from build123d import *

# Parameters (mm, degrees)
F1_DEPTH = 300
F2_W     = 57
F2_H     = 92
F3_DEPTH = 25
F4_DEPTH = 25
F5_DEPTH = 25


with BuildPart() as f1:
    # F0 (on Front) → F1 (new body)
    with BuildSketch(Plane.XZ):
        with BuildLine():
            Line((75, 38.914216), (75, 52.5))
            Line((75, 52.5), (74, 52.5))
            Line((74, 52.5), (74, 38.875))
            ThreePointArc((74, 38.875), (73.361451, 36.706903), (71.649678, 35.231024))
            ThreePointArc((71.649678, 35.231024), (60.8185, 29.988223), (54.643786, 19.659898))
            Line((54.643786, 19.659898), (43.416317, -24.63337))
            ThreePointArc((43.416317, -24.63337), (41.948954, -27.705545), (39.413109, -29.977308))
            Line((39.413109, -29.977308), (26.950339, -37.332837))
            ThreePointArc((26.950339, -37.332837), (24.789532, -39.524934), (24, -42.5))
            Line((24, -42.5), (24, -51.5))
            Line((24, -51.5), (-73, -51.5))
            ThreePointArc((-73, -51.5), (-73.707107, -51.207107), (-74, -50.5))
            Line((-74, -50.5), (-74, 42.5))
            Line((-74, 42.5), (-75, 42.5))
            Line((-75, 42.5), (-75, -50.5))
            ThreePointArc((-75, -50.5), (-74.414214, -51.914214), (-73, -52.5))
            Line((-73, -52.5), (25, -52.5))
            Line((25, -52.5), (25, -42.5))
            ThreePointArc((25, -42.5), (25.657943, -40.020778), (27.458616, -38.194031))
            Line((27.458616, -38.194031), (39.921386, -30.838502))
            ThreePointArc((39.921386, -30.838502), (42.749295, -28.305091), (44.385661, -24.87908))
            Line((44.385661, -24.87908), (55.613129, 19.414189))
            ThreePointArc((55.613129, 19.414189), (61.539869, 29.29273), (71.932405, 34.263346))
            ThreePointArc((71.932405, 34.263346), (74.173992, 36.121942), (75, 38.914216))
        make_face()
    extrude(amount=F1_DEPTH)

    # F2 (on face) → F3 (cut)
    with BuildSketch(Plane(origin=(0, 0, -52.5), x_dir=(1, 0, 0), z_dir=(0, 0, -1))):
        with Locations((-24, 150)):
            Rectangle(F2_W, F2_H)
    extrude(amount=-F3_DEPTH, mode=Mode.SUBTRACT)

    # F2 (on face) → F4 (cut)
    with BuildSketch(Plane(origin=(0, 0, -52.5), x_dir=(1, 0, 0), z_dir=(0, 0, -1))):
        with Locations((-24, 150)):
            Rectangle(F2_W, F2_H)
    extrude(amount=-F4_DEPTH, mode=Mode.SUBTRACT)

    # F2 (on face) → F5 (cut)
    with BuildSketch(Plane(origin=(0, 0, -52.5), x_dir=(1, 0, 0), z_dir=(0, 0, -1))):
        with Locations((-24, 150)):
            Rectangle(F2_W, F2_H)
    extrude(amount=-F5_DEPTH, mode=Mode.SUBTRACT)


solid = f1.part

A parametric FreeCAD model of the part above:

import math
import FreeCAD as App
import Part
import Sketcher
from FreeCAD import Vector


def add_polygon(sketch, points):
    """Adds a closed chain of lines whose ends are joined by coincident constraints."""
    first, n = sketch.GeometryCount, len(points)
    for a, b in zip(points, points[1:] + points[:1]):
        sketch.addGeometry(Part.LineSegment(App.Vector(*a, 0), App.Vector(*b, 0)), False)
    for i in range(n):
        sketch.addConstraint(Sketcher.Constraint("Coincident", first + i, 2, first + (i + 1) % n, 1))

doc = App.newDocument("Part")
body = doc.addObject("PartDesign::Body", "Body")

# Sketch on XZ plane
sketch1 = body.newObject("Sketcher::SketchObject", "Sketch")
sketch1.AttachmentSupport = (doc.getObject("XZ_Plane"), [""])
sketch1.MapMode = "FlatFace"
sketch1.addGeometry([
    Part.LineSegment(Vector(75, 38.914216, 0), Vector(75, 52.5, 0)),  # 0
    Part.LineSegment(Vector(75, 52.5, 0), Vector(74, 52.5, 0)),  # 1
    Part.LineSegment(Vector(74, 52.5, 0), Vector(74, 38.875, 0)),  # 2
    Part.ArcOfCircle(Part.Circle(Vector(69.999999, 38.875001, 0), Vector(0, 0, 1), 4.000001), math.radians(-65.643075), math.radians(-0.000013)),  # 3
    Part.ArcOfCircle(Part.Circle(Vector(75.000001, 14.499999, 0), Vector(0, 0, 1), 21.000001), math.radians(99.180151), math.radians(165.776236)),  # 4
    Part.LineSegment(Vector(54.643786, 19.659898, 0), Vector(43.416317, -24.63337, 0)),  # 5
    Part.ArcOfCircle(Part.Circle(Vector(34.999998, -22.499999, 0), Vector(0, 0, 1), 8.682493), math.radians(-59.450878), math.radians(-14.223764)),  # 6
    Part.LineSegment(Vector(39.413109, -29.977308, 0), Vector(26.950339, -37.332837, 0)),  # 7
    Part.ArcOfCircle(Part.Circle(Vector(30.000005, -42.500002, 0), Vector(0, 0, 1), 6.000005), math.radians(120.549145), math.radians(179.999979)),  # 8
    Part.LineSegment(Vector(24, -42.5, 0), Vector(24, -51.5, 0)),  # 9
    Part.LineSegment(Vector(24, -51.5, 0), Vector(-73, -51.5, 0)),  # 10
    Part.ArcOfCircle(Part.Circle(Vector(-73.000001, -50.500001, 0), Vector(0, 0, 1), 0.999999), math.radians(179.999957), math.radians(270.000043)),  # 11
    Part.LineSegment(Vector(-74, -50.5, 0), Vector(-74, 42.5, 0)),  # 12
    Part.LineSegment(Vector(-74, 42.5, 0), Vector(-75, 42.5, 0)),  # 13
    Part.LineSegment(Vector(-75, 42.5, 0), Vector(-75, -50.5, 0)),  # 14
    Part.ArcOfCircle(Part.Circle(Vector(-73.000001, -50.500001, 0), Vector(0, 0, 1), 1.999999), math.radians(179.999957), math.radians(270.000043)),  # 15
    Part.LineSegment(Vector(-73, -52.5, 0), Vector(25, -52.5, 0)),  # 16
    Part.LineSegment(Vector(25, -52.5, 0), Vector(25, -42.5, 0)),  # 17
    Part.ArcOfCircle(Part.Circle(Vector(30, -42.5, 0), Vector(0, 0, 1), 5), math.radians(120.549117), math.radians(180.000001)),  # 18
    Part.LineSegment(Vector(27.458616, -38.194031, 0), Vector(39.921386, -30.838502, 0)),  # 19
    Part.ArcOfCircle(Part.Circle(Vector(35, -22.5, 0), Vector(0, 0, 1), 9.682492), math.radians(-59.450884), math.radians(-14.223765)),  # 20
    Part.LineSegment(Vector(44.385661, -24.87908, 0), Vector(55.613129, 19.414189, 0)),  # 21
    Part.ArcOfCircle(Part.Circle(Vector(75.000001, 14.499998, 0), Vector(0, 0, 1), 20.000002), math.radians(98.822841), math.radians(165.776231)),  # 22
    Part.ArcOfCircle(Part.Circle(Vector(69.999999, 38.875, 0), Vector(0, 0, 1), 5.000155), math.radians(-67.265015), math.radians(0.449368)),  # 23
], False)
sketch1.addConstraint([
    Sketcher.Constraint("Coincident", 0, 2, 1, 1),
    Sketcher.Constraint("Coincident", 1, 2, 2, 1),
    Sketcher.Constraint("Tangent", 2, 2, 3, 2),
    Sketcher.Constraint("Coincident", 3, 1, 4, 1),
    Sketcher.Constraint("Tangent", 4, 2, 5, 1),
    Sketcher.Constraint("Tangent", 5, 2, 6, 2),
    Sketcher.Constraint("Tangent", 6, 1, 7, 1),
    Sketcher.Constraint("Tangent", 7, 2, 8, 1),
    Sketcher.Constraint("Tangent", 8, 2, 9, 1),
    Sketcher.Constraint("Coincident", 9, 2, 10, 1),
    Sketcher.Constraint("Tangent", 10, 2, 11, 2),
    Sketcher.Constraint("Tangent", 11, 1, 12, 1),
    Sketcher.Constraint("Coincident", 12, 2, 13, 1),
    Sketcher.Constraint("Coincident", 13, 2, 14, 1),
    Sketcher.Constraint("Tangent", 14, 2, 15, 1),
    Sketcher.Constraint("Tangent", 15, 2, 16, 1),
    Sketcher.Constraint("Coincident", 16, 2, 17, 1),
    Sketcher.Constraint("Tangent", 17, 2, 18, 2),
    Sketcher.Constraint("Tangent", 18, 1, 19, 1),
    Sketcher.Constraint("Tangent", 19, 2, 20, 1),
    Sketcher.Constraint("Tangent", 20, 2, 21, 1),
    Sketcher.Constraint("Tangent", 21, 2, 22, 2),
    Sketcher.Constraint("Coincident", 22, 1, 23, 1),
    Sketcher.Constraint("Coincident", 23, 2, 0, 1),
    Sketcher.Constraint("Vertical", 0),
    Sketcher.Constraint("Horizontal", 1),
    Sketcher.Constraint("Vertical", 2),
    Sketcher.Constraint("Vertical", 9),
    Sketcher.Constraint("Horizontal", 10),
    Sketcher.Constraint("Vertical", 12),
    Sketcher.Constraint("Horizontal", 13),
    Sketcher.Constraint("Vertical", 14),
    Sketcher.Constraint("Horizontal", 16),
    Sketcher.Constraint("Vertical", 17),
    Sketcher.Constraint("Coincident", 15, 3, 11, 3),
    Sketcher.Constraint("Coincident", 18, 3, 8, 3),
    Sketcher.Constraint("Coincident", 20, 3, 6, 3),
    Sketcher.Constraint("Coincident", 22, 3, 4, 3),
    Sketcher.Constraint("Coincident", 23, 3, 3, 3),
    Sketcher.Constraint("Parallel", 7, 19),
    Sketcher.Constraint("Parallel", 5, 21),
    Sketcher.Constraint("Vertical", 22, 3, 0, 2),
    Sketcher.Constraint("Equal", 1, 13),
    Sketcher.Constraint("Radius", 3, 4.000001),
    Sketcher.Constraint("Radius", 4, 21.000001),
    Sketcher.Constraint("Radius", 11, 0.999999),
    Sketcher.Constraint("Radius", 15, 1.999999),
    Sketcher.Constraint("Radius", 18, 5.0),
    Sketcher.Constraint("Radius", 22, 20.000002),
    Sketcher.Constraint("DistanceX", 10, 2, 10, 1, 97.0),
    Sketcher.Constraint("DistanceY", 9, 2, 9, 1, 9.0),
    Sketcher.Constraint("DistanceY", 12, 1, 12, 2, 93.0),
    Sketcher.Constraint("DistanceX", -1, 1, 3, 3, 69.999999),
    Sketcher.Constraint("DistanceX", -1, 1, 6, 3, 34.999998),
    Sketcher.Constraint("DistanceX", 11, 3, -1, 1, 73.000001),
    Sketcher.Constraint("DistanceY", 6, 3, 4, 3, 36.999998),
    Sketcher.Constraint("DistanceY", 8, 3, 4, 3, 57.000001),
    Sketcher.Constraint("DistanceY", 4, 3, 0, 2, 38.000001),
    Sketcher.Constraint("DistanceY", -1, 1, 4, 3, 14.499999),
    Sketcher.Constraint("DistanceY", 2, 2, 2, 1, 13.625),
    Sketcher.Constraint("Radius", 6, 8.682493),
    Sketcher.Constraint("Radius", 23, 5.000155),
])
pad1 = body.newObject("PartDesign::Pad", "Pad")
pad1.Profile = sketch1
pad1.Length = 300

# Sketch on XY plane
sketch2 = body.newObject("Sketcher::SketchObject", "Sketch001")
sketch2.AttachmentSupport = (doc.getObject("XY_Plane"), [""])
sketch2.MapMode = "FlatFace"
sketch2.AttachmentOffset = App.Placement(Vector(0, 0, -52.5), App.Rotation())
add_polygon(sketch2, [(-52.5, -196), (-52.5, -104), (4.5, -104), (4.5, -196)])  # lines 0-3
sketch2.addConstraint([
    Sketcher.Constraint("Vertical", 0),
    Sketcher.Constraint("Horizontal", 1),
    Sketcher.Constraint("Vertical", 2),
    Sketcher.Constraint("Horizontal", 3),
    Sketcher.Constraint("DistanceX", 1, 1, 1, 2, 57.0),
    Sketcher.Constraint("DistanceY", 0, 1, 0, 2, 92.0),
    Sketcher.Constraint("DistanceY", 0, 2, -1, 1, 104.0),
    Sketcher.Constraint("DistanceX", 0, 2, -1, 1, 52.5),
])
pocket1 = body.newObject("PartDesign::Pocket", "Pocket")
pocket1.Profile = sketch2
pocket1.Length = 25
pocket1.Reversed = True

# Sketch on XY plane
sketch3 = body.newObject("Sketcher::SketchObject", "Sketch002")
sketch3.AttachmentSupport = (doc.getObject("XY_Plane"), [""])
sketch3.MapMode = "FlatFace"
sketch3.AttachmentOffset = App.Placement(Vector(0, 0, -52.5), App.Rotation())
add_polygon(sketch3, [(-52.5, -196), (-52.5, -104), (4.5, -104), (4.5, -196)])  # lines 0-3
sketch3.addConstraint([
    Sketcher.Constraint("Vertical", 0),
    Sketcher.Constraint("Horizontal", 1),
    Sketcher.Constraint("Vertical", 2),
    Sketcher.Constraint("Horizontal", 3),
    Sketcher.Constraint("DistanceX", 1, 1, 1, 2, 57.0),
    Sketcher.Constraint("DistanceY", 0, 1, 0, 2, 92.0),
    Sketcher.Constraint("DistanceY", 0, 2, -1, 1, 104.0),
    Sketcher.Constraint("DistanceX", 0, 2, -1, 1, 52.5),
])
pocket2 = body.newObject("PartDesign::Pocket", "Pocket001")
pocket2.Profile = sketch3
pocket2.Length = 25
pocket2.Reversed = True

# Sketch on XY plane
sketch4 = body.newObject("Sketcher::SketchObject", "Sketch003")
sketch4.AttachmentSupport = (doc.getObject("XY_Plane"), [""])
sketch4.MapMode = "FlatFace"
sketch4.AttachmentOffset = App.Placement(Vector(0, 0, -52.5), App.Rotation())
add_polygon(sketch4, [(-52.5, -196), (-52.5, -104), (4.5, -104), (4.5, -196)])  # lines 0-3
sketch4.addConstraint([
    Sketcher.Constraint("Vertical", 0),
    Sketcher.Constraint("Horizontal", 1),
    Sketcher.Constraint("Vertical", 2),
    Sketcher.Constraint("Horizontal", 3),
    Sketcher.Constraint("DistanceX", 1, 1, 1, 2, 57.0),
    Sketcher.Constraint("DistanceY", 0, 1, 0, 2, 92.0),
    Sketcher.Constraint("DistanceY", 0, 2, -1, 1, 104.0),
    Sketcher.Constraint("DistanceX", 0, 2, -1, 1, 52.5),
])
pocket3 = body.newObject("PartDesign::Pocket", "Pocket002")
pocket3.Profile = sketch4
pocket3.Length = 25
pocket3.Reversed = True

doc.recompute()
